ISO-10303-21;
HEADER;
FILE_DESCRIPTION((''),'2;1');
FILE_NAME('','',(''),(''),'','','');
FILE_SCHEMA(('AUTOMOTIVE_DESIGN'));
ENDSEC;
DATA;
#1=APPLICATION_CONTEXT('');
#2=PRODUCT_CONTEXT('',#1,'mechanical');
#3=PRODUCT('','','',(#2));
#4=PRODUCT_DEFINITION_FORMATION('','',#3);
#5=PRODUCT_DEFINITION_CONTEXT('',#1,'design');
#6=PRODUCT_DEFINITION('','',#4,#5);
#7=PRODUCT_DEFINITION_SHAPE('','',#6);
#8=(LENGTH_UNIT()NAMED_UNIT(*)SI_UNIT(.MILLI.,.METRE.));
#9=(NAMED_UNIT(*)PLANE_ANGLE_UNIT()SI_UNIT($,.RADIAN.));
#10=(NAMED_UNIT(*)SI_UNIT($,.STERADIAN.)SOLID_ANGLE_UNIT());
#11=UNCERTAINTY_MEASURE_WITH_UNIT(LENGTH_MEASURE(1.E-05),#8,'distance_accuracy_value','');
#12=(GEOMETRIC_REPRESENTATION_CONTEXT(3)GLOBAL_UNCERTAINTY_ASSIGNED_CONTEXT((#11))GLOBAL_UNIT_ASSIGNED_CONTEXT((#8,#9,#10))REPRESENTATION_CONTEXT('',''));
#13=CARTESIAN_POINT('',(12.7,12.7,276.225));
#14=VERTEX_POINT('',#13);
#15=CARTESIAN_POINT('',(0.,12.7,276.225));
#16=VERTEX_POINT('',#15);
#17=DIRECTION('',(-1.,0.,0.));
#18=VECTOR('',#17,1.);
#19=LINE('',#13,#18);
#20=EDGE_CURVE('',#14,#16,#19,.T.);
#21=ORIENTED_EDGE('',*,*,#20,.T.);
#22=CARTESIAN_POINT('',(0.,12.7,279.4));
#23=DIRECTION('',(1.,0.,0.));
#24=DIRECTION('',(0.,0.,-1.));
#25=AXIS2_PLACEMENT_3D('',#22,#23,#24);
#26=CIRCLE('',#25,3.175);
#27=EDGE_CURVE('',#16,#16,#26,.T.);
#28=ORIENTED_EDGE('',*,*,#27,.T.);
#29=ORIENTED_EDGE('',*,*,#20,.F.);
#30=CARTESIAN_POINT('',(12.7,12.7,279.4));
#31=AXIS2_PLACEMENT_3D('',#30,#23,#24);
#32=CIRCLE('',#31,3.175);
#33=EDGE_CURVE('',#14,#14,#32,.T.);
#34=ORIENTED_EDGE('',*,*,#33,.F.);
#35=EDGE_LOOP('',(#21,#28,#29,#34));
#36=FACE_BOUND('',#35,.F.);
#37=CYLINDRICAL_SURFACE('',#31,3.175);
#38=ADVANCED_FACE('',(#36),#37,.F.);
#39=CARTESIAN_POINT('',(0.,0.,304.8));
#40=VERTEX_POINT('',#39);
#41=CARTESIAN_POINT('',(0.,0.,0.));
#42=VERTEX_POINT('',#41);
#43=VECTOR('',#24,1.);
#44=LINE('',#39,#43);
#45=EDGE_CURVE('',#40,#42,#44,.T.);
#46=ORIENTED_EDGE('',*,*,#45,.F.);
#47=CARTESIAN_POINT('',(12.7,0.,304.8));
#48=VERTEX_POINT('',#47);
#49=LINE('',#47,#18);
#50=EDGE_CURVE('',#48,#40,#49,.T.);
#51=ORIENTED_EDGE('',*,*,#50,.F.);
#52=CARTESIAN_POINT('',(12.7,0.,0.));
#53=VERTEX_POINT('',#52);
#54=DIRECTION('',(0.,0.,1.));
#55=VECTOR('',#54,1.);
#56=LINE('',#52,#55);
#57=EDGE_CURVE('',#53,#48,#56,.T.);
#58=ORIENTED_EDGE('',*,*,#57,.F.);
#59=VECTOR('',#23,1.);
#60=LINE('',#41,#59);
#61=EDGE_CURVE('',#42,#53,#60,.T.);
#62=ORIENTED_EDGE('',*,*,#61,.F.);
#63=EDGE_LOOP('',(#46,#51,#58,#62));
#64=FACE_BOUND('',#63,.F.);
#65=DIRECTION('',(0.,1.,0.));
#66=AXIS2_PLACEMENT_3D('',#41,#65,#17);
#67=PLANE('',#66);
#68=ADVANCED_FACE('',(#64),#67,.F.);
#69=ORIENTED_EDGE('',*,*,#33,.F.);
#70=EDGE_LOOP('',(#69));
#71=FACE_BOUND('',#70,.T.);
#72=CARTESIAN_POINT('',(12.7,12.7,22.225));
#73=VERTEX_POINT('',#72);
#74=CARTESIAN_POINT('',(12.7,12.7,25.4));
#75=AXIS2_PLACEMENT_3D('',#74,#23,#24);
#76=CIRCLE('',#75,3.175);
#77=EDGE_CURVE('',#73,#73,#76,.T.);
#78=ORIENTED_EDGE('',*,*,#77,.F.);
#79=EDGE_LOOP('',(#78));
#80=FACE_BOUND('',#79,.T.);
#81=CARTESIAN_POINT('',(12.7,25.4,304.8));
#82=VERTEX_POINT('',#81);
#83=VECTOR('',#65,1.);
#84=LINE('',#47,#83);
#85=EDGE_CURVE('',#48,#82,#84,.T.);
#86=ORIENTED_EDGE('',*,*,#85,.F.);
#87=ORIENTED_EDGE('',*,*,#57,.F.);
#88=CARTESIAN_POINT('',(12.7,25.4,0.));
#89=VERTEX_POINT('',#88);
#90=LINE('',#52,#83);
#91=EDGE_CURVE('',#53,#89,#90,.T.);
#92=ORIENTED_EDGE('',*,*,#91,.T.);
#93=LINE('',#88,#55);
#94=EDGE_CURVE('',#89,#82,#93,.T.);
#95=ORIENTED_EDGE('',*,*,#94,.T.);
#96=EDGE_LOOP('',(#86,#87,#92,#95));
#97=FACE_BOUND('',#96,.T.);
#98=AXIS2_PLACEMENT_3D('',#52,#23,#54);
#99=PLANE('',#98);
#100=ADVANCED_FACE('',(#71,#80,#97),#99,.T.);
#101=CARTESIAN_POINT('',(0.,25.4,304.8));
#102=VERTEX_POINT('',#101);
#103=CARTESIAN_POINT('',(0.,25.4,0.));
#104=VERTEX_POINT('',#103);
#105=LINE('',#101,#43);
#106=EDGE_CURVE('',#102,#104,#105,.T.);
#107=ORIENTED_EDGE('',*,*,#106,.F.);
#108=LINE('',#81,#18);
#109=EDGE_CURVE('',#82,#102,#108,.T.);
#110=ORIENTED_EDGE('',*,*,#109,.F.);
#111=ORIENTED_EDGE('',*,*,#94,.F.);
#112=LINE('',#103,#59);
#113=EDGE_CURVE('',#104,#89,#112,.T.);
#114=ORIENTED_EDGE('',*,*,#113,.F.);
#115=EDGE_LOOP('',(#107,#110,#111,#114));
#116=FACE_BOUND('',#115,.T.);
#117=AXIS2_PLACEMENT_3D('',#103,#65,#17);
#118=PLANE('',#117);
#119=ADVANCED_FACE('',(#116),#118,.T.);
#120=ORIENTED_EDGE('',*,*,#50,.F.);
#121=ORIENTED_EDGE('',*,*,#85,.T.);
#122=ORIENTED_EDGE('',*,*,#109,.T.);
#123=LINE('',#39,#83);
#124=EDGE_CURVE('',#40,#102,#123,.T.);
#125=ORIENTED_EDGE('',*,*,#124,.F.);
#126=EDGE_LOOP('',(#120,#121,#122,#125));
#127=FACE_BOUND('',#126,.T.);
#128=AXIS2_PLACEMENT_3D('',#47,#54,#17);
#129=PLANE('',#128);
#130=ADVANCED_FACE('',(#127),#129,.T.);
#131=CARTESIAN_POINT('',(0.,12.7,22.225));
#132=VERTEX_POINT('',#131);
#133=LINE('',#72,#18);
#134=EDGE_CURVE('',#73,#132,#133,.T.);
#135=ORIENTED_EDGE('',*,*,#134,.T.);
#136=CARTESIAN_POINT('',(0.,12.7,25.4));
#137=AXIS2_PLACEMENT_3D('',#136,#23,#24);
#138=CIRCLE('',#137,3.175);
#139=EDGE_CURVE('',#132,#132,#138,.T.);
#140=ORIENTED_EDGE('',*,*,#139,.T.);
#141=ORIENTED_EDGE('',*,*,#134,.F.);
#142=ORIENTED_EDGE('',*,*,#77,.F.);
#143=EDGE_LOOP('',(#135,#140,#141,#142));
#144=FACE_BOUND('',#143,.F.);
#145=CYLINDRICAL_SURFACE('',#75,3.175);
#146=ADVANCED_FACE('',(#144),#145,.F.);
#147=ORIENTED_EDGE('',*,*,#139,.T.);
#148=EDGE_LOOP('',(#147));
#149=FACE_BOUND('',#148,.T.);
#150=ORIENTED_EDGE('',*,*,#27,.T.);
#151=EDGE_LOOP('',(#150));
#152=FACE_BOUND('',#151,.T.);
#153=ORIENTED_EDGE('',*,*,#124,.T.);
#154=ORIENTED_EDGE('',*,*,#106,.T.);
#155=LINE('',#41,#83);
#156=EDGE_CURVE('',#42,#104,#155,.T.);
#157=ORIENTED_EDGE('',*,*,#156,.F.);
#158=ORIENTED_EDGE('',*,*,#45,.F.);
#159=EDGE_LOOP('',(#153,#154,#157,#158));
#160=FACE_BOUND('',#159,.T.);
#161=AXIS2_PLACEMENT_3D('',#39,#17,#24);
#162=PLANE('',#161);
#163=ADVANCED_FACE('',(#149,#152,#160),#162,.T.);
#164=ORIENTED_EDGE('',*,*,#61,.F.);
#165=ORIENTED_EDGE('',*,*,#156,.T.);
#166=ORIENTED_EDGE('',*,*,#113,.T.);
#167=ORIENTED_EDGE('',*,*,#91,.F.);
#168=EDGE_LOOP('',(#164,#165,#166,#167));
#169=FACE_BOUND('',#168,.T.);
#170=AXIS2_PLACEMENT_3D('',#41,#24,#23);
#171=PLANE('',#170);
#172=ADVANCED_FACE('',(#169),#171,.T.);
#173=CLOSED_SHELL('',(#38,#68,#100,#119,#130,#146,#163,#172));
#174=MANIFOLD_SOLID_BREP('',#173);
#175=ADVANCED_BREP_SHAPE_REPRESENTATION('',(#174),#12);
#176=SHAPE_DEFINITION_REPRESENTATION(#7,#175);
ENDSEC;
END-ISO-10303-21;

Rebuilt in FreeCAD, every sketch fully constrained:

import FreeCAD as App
import Part
import Sketcher
Q = App.Units.Quantity

doc = App.newDocument("Part")
body = doc.addObject("PartDesign::Body", "Body")

# Sketch on XZ plane
sketch1 = body.newObject("Sketcher::SketchObject", "Sketch")
sketch1.AttachmentSupport = (doc.getObject("XZ_Plane"), [""])
sketch1.MapMode = "FlatFace"
sketch1.addGeometry([
    Part.LineSegment(App.Vector(12.7, 0, 0), App.Vector(0, 0, 0)),
    Part.LineSegment(App.Vector(0, 0, 0), App.Vector(0, 304.8, 0)),
    Part.LineSegment(App.Vector(0, 304.8, 0), App.Vector(12.7, 304.8, 0)),
    Part.LineSegment(App.Vector(12.7, 304.8, 0), App.Vector(12.7, 0, 0)),
], False)
sketch1.addConstraint([
    Sketcher.Constraint("Coincident", 0, 2, 1, 1),
    Sketcher.Constraint("Coincident", 1, 2, 2, 1),
    Sketcher.Constraint("Coincident", 2, 2, 3, 1),
    Sketcher.Constraint("Coincident", 3, 2, 0, 1),
    Sketcher.Constraint("Horizontal", 0),
    Sketcher.Constraint("Vertical", 1),
    Sketcher.Constraint("Horizontal", 2),
    Sketcher.Constraint("Vertical", 3),
    Sketcher.Constraint("Coincident", 0, 2, -1, 1),
    Sketcher.Constraint("DistanceY", 1, 1, 1, 2, Q("12 in")),
    Sketcher.Constraint("DistanceX", 0, 2, 0, 1, Q("0.5 in")),
])
pad1 = body.newObject("PartDesign::Pad", "Pad")
pad1.Profile = sketch1
pad1.Length = Q("1 in")
pad1.Reversed = True

# Sketch on YZ plane
sketch2 = body.newObject("Sketcher::SketchObject", "Sketch001")
sketch2.AttachmentSupport = (doc.getObject("YZ_Plane"), [""])
sketch2.MapMode = "FlatFace"
sketch2.AttachmentOffset = App.Placement(App.Vector(0, 0, 0.5 * 25.4), App.Rotation())
sketch2.addGeometry([
    Part.Circle(App.Vector(12.7, 25.4, 0), App.Vector(0, 0, 1), 3.175),
    Part.Circle(App.Vector(12.7, 279.4, 0), App.Vector(0, 0, 1), 3.175),
], False)
sketch2.addConstraint([
    Sketcher.Constraint("Equal", 0, 1),
    Sketcher.Constraint("Vertical", 0, 3, 1, 3),
    Sketcher.Constraint("Diameter", 0, Q("0.25 in")),
    Sketcher.Constraint("DistanceY", -1, 1, 0, 3, Q("1 in")),
    Sketcher.Constraint("DistanceX", -1, 1, 0, 3, Q("0.5 in")),
    Sketcher.Constraint("DistanceY", -1, 1, 1, 3, Q("11 in")),
])
pocket1 = body.newObject("PartDesign::Pocket", "Pocket")
pocket1.Profile = sketch2
pocket1.Type = "ThroughAll"

doc.recompute()
